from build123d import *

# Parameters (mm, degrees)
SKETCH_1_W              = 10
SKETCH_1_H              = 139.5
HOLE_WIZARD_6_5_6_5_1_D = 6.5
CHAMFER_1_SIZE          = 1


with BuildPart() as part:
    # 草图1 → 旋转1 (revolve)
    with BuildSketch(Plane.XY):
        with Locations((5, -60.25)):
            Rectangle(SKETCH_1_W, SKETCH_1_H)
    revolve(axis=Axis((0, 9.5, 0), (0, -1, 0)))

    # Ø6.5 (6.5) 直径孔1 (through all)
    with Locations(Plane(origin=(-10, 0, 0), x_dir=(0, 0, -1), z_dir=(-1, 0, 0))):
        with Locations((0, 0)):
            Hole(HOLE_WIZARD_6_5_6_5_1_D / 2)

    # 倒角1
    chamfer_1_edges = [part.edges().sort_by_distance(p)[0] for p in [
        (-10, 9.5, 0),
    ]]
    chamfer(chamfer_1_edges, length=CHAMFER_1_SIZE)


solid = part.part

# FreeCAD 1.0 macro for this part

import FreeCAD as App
import Part
import Sketcher

V = App.Vector


def edges_at(feature, points):
    """Names of the edges that pass closest to the given points."""
    edges = feature.Shape.Edges
    near = lambda p: min(range(len(edges)), key=lambda i: edges[i].distToShape(Part.Vertex(*p))[0])
    return sorted({f"Edge{near(p) + 1}" for p in points})

doc = App.newDocument("Part")
params = doc.addObject("Spreadsheet::Sheet", "Params")
for row, (alias, value) in enumerate([
    ("sketch1_width", "10 mm"),
    ("sketch1_height", "139.5 mm"),
    ("revolution_angle", "360 deg"),
    ("sketch2_diameter", "6.5 mm"),
    ("hole_diameter", "6.5 mm"),
    ("chamfer_size", "1 mm"),
], start=1):
    params.set(f"A{row}", alias)
    params.set(f"B{row}", "=" + value)
    params.setAlias(f"B{row}", alias)

body = doc.addObject("PartDesign::Body", "Body")

# Sketch on XY plane
sketch1 = body.newObject("Sketcher::SketchObject", "Sketch")
sketch1.AttachmentSupport = (doc.getObject("XY_Plane"), [""])
sketch1.MapMode = "FlatFace"
sketch1.addGeometry([
    Part.LineSegment(V(0, 9.5, 0), V(0, -130, 0)),
    Part.LineSegment(V(0, -130, 0), V(10, -130, 0)),
    Part.LineSegment(V(10, -130, 0), V(10, 9.5, 0)),
    Part.LineSegment(V(10, 9.5, 0), V(0, 9.5, 0)),
], False)
sketch1.addConstraint([
    Sketcher.Constraint("Coincident", 0, 2, 1, 1),
    Sketcher.Constraint("Coincident", 1, 2, 2, 1),
    Sketcher.Constraint("Coincident", 2, 2, 3, 1),
    Sketcher.Constraint("Coincident", 3, 2, 0, 1),
    Sketcher.Constraint("Vertical", 0),
    Sketcher.Constraint("Horizontal", 1),
    Sketcher.Constraint("Vertical", 2),
    Sketcher.Constraint("Horizontal", 3),
    Sketcher.Constraint("PointOnObject", 0, 2, -2),
    Sketcher.Constraint("DistanceX", 1, 1, 1, 2, 10.0),
    Sketcher.Constraint("DistanceY", 0, 2, 0, 1, 139.5),
    Sketcher.Constraint("DistanceY", 0, 2, -1, 1, 130.0),
])
sketch1.setExpression("Constraints[9]", "Params.sketch1_width")
sketch1.setExpression("Constraints[10]", "Params.sketch1_height")
revolution = body.newObject("PartDesign::Revolution", "Revolution")
revolution.Profile = sketch1
revolution.ReferenceAxis = (sketch1, ["V_Axis"])
revolution.setExpression("Angle", "Params.revolution_angle")

# Sketch on YZ plane
sketch2 = body.newObject("Sketcher::SketchObject", "Sketch001")
sketch2.AttachmentSupport = (doc.getObject("YZ_Plane"), [""])
sketch2.MapMode = "FlatFace"
sketch2.AttachmentOffset = App.Placement(V(0, 0, -10), App.Rotation())
sketch2.addGeometry(Part.Circle(V(0, 0, 0), V(0, 0, 1), 3.25), False)
sketch2.addConstraint([
    Sketcher.Constraint("Coincident", 0, 3, -1, 1),
    Sketcher.Constraint("Diameter", 0, 6.5),
])
sketch2.setExpression("Constraints[1]", "Params.sketch2_diameter")
doc.recompute()
hole = body.newObject("PartDesign::Hole", "Hole")
hole.Profile = sketch2
hole.ThreadType = "None"
hole.setExpression("Diameter", "Params.hole_diameter")
hole.DepthType = "ThroughAll"
hole.Reversed = True
doc.recompute()

chamfer = body.newObject("PartDesign::Chamfer", "Chamfer")
chamfer.Base = (hole, edges_at(hole, [(-10, 9.5, 0)]))
chamfer.setExpression("Size", "Params.chamfer_size")

doc.recompute()
